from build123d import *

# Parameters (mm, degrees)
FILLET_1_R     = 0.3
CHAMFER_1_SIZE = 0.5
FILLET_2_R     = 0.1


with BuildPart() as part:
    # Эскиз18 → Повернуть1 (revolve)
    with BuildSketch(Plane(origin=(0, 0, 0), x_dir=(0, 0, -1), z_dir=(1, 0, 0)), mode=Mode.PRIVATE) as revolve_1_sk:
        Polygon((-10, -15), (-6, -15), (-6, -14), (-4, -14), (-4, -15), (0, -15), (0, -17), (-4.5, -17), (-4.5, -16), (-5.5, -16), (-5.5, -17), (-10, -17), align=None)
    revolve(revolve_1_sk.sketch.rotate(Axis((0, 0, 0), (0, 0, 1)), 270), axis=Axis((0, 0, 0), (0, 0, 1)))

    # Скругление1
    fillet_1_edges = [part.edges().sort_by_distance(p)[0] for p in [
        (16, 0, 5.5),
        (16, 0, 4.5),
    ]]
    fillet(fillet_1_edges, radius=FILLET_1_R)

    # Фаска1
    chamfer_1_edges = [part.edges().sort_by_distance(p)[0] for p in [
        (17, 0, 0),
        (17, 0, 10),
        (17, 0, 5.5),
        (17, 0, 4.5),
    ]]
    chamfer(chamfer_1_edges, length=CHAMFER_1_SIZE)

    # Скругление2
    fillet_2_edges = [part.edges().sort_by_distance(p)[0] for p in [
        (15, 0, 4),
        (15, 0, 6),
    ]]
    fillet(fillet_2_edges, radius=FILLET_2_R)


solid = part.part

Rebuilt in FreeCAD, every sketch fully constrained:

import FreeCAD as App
import Part
import Sketcher


def edges_at(feature, points):
    """Names of the edges that pass closest to the given points."""
    edges = feature.Shape.Edges
    near = lambda p: min(range(len(edges)), key=lambda i: edges[i].distToShape(Part.Vertex(*p))[0])
    return sorted({f"Edge{near(p) + 1}" for p in points})


def add_polygon(sketch, points):
    """Adds a closed chain of lines whose ends are joined by coincident constraints."""
    first, n = sketch.GeometryCount, len(points)
    for a, b in zip(points, points[1:] + points[:1]):
        sketch.addGeometry(Part.LineSegment(App.Vector(*a, 0), App.Vector(*b, 0)), False)
    for i in range(n):
        sketch.addConstraint(Sketcher.Constraint("Coincident", first + i, 2, first + (i + 1) % n, 1))

doc = App.newDocument("Part")
body = doc.addObject("PartDesign::Body", "Body")

sketch1 = body.newObject("Sketcher::SketchObject", "Sketch")
sketch1.AttachmentSupport = (doc.getObject("YZ_Plane"), [""])
sketch1.MapMode = "FlatFace"
add_polygon(sketch1, [(-15, 6), (-15, 10), (-17, 10), (-17, 5.5), (-16, 5.5), (-16, 4.5), (-17, 4.5), (-17, 0), (-15, 0), (-15, 4), (-14, 4), (-14, 6)])
sketch1.addConstraint(Sketcher.Constraint("Vertical", 0))
sketch1.addConstraint(Sketcher.Constraint("Horizontal", 1))
sketch1.addConstraint(Sketcher.Constraint("Vertical", 2))
sketch1.addConstraint(Sketcher.Constraint("Horizontal", 3))
sketch1.addConstraint(Sketcher.Constraint("Vertical", 4))
sketch1.addConstraint(Sketcher.Constraint("Horizontal", 5))
sketch1.addConstraint(Sketcher.Constraint("Vertical", 6))
sketch1.addConstraint(Sketcher.Constraint("Horizontal", 7))
sketch1.addConstraint(Sketcher.Constraint("Vertical", 8))
sketch1.addConstraint(Sketcher.Constraint("Horizontal", 9))
sketch1.addConstraint(Sketcher.Constraint("Vertical", 10))
sketch1.addConstraint(Sketcher.Constraint("Horizontal", 11))
sketch1.addConstraint(Sketcher.Constraint("PointOnObject", 6, 2, -1))
sketch1.addConstraint(Sketcher.Constraint("Vertical", 2, 2, 5, 2))
sketch1.addConstraint(Sketcher.Constraint("Vertical", 0, 2, 7, 2))
sketch1.addConstraint(Sketcher.Constraint("Equal", 5, 9))
sketch1.addConstraint(Sketcher.Constraint("Equal", 11, 4))
sketch1.addConstraint(Sketcher.Constraint("Equal", 2, 6))
sketch1.addConstraint(Sketcher.Constraint("Equal", 0, 8))
sketch1.addConstraint(Sketcher.Constraint("Equal", 7, 10))
sketch1.addConstraint(Sketcher.Constraint("DistanceX", 1, 2, 1, 1, 2.0))
sketch1.addConstraint(Sketcher.Constraint("DistanceX", 3, 1, 3, 2, 1.0))
sketch1.addConstraint(Sketcher.Constraint("DistanceY", 0, 1, 0, 2, 4.0))
sketch1.addConstraint(Sketcher.Constraint("DistanceX", 0, 2, -1, 1, 15.0))
revolution = body.newObject("PartDesign::Revolution", "Revolution")
revolution.Profile = sketch1
revolution.ReferenceAxis = (sketch1, ["V_Axis"])
revolution.Angle = 360
doc.recompute()

fillet = body.newObject("PartDesign::Fillet", "Fillet")
fillet.Base = (revolution, edges_at(revolution, [(16, 0, 5.5), (16, 0, 4.5)]))
fillet.Radius = 0.3
doc.recompute()

chamfer = body.newObject("PartDesign::Chamfer", "Chamfer")
chamfer.Base = (fillet, edges_at(fillet, [
    (17, 0, 0),
    (17, 0, 10),
    (17, 0, 5.5),
    (17, 0, 4.5),
]))
chamfer.Size = 0.5
doc.recompute()

fillet2 = body.newObject("PartDesign::Fillet", "Fillet001")
fillet2.Base = (chamfer, edges_at(chamfer, [(15, 0, 4), (15, 0, 6)]))
fillet2.Radius = 0.1

doc.recompute()
